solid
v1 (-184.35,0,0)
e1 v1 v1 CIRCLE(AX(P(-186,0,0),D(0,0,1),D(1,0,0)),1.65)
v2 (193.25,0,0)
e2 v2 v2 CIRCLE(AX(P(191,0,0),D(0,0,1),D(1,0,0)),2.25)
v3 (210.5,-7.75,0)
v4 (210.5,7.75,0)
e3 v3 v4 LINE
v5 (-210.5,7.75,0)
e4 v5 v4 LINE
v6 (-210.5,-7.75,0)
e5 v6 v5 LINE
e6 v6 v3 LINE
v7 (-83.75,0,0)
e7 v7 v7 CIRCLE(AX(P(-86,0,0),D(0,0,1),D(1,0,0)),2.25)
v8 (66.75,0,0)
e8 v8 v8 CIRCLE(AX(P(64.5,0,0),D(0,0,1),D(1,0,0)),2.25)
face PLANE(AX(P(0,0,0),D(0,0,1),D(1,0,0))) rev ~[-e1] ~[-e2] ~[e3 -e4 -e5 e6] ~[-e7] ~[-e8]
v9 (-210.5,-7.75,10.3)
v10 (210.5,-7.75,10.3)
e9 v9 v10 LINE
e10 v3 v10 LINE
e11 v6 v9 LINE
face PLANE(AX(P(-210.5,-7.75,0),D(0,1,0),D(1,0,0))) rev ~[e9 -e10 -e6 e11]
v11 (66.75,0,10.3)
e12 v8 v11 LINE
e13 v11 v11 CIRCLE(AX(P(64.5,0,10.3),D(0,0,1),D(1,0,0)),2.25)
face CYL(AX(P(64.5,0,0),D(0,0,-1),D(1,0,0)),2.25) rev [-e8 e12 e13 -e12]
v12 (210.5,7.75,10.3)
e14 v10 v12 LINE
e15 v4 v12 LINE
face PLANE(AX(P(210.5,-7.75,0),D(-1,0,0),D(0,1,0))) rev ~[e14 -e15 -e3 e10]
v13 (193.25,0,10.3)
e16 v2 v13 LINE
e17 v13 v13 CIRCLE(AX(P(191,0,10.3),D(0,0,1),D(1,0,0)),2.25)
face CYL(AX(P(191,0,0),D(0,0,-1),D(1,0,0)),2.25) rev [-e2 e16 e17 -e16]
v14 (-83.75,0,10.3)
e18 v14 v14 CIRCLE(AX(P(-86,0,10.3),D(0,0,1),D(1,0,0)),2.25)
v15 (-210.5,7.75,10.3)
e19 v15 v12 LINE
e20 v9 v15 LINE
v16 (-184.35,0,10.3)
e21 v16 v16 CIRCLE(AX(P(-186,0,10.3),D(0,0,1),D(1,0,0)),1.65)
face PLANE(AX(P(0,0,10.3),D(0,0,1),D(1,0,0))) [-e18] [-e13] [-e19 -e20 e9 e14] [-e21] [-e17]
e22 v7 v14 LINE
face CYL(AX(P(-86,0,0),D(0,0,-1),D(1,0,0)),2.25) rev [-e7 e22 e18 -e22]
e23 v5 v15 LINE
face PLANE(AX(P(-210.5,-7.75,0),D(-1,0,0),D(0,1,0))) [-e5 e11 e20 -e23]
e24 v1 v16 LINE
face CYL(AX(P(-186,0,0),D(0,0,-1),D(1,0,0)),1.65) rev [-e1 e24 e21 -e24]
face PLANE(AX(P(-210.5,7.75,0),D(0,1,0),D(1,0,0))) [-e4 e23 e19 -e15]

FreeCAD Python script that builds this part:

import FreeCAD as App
import Part
import Sketcher
from FreeCAD import Vector
Q = App.Units.Quantity

doc = App.newDocument("Part")
body = doc.addObject("PartDesign::Body", "Body")

# Sketch on XY plane
sketch1 = body.newObject("Sketcher::SketchObject", "Sketch")
sketch1.AttachmentSupport = (doc.getObject("XY_Plane"), [""])
sketch1.MapMode = "FlatFace"
sketch1.addGeometry([
    Part.LineSegment(Vector(-210.5, 7.75, 0), Vector(-210.5, -7.75, 0)),  # 0
    Part.LineSegment(Vector(-210.5, -7.75, 0), Vector(210.5, -7.75, 0)),  # 1
    Part.LineSegment(Vector(210.5, -7.75, 0), Vector(210.5, 7.75, 0)),  # 2
    Part.LineSegment(Vector(210.5, 7.75, 0), Vector(-210.5, 7.75, 0)),  # 3
    Part.Circle(Vector(-186, 0, 0), Vector(0, 0, 1), 1.65),  # 4
    Part.Circle(Vector(-86, 0, 0), Vector(0, 0, 1), 2.25),  # 5
    Part.Circle(Vector(64.5, 0, 0), Vector(0, 0, 1), 2.25),  # 6
    Part.Circle(Vector(191, 0, 0), Vector(0, 0, 1), 2.25),  # 7
], False)
sketch1.addConstraint([
    Sketcher.Constraint("Coincident", 0, 2, 1, 1),
    Sketcher.Constraint("Coincident", 1, 2, 2, 1),
    Sketcher.Constraint("Coincident", 2, 2, 3, 1),
    Sketcher.Constraint("Coincident", 3, 2, 0, 1),
    Sketcher.Constraint("Vertical", 0),
    Sketcher.Constraint("Horizontal", 1),
    Sketcher.Constraint("Vertical", 2),
    Sketcher.Constraint("Horizontal", 3),
    Sketcher.Constraint("Equal", 5, 6),
    Sketcher.Constraint("Equal", 6, 7),
    Sketcher.Constraint("Symmetric", 0, 2, 2, 2, -1, 1),
    Sketcher.Constraint("PointOnObject", 4, 3, -1),
    Sketcher.Constraint("PointOnObject", 5, 3, -1),
    Sketcher.Constraint("PointOnObject", 6, 3, -1),
    Sketcher.Constraint("PointOnObject", 7, 3, -1),
    Sketcher.Constraint("Diameter", 4, Q("3.3 mm")),
    Sketcher.Constraint("Diameter", 5, Q("4.5 mm")),
    Sketcher.Constraint("DistanceX", 1, 1, 1, 2, Q("421 mm")),
    Sketcher.Constraint("DistanceY", 0, 2, 0, 1, Q("15.5 mm")),
    Sketcher.Constraint("DistanceX", 4, 3, -1, 1, Q("186 mm")),
    Sketcher.Constraint("DistanceX", 5, 3, -1, 1, Q("86 mm")),
    Sketcher.Constraint("DistanceX", -1, 1, 7, 3, Q("191 mm")),
    Sketcher.Constraint("DistanceX", 0, 2, 6, 3, Q("275 mm")),
])
pad1 = body.newObject("PartDesign::Pad", "Pad")
pad1.Profile = sketch1
pad1.Length = 10.3

doc.recompute()
